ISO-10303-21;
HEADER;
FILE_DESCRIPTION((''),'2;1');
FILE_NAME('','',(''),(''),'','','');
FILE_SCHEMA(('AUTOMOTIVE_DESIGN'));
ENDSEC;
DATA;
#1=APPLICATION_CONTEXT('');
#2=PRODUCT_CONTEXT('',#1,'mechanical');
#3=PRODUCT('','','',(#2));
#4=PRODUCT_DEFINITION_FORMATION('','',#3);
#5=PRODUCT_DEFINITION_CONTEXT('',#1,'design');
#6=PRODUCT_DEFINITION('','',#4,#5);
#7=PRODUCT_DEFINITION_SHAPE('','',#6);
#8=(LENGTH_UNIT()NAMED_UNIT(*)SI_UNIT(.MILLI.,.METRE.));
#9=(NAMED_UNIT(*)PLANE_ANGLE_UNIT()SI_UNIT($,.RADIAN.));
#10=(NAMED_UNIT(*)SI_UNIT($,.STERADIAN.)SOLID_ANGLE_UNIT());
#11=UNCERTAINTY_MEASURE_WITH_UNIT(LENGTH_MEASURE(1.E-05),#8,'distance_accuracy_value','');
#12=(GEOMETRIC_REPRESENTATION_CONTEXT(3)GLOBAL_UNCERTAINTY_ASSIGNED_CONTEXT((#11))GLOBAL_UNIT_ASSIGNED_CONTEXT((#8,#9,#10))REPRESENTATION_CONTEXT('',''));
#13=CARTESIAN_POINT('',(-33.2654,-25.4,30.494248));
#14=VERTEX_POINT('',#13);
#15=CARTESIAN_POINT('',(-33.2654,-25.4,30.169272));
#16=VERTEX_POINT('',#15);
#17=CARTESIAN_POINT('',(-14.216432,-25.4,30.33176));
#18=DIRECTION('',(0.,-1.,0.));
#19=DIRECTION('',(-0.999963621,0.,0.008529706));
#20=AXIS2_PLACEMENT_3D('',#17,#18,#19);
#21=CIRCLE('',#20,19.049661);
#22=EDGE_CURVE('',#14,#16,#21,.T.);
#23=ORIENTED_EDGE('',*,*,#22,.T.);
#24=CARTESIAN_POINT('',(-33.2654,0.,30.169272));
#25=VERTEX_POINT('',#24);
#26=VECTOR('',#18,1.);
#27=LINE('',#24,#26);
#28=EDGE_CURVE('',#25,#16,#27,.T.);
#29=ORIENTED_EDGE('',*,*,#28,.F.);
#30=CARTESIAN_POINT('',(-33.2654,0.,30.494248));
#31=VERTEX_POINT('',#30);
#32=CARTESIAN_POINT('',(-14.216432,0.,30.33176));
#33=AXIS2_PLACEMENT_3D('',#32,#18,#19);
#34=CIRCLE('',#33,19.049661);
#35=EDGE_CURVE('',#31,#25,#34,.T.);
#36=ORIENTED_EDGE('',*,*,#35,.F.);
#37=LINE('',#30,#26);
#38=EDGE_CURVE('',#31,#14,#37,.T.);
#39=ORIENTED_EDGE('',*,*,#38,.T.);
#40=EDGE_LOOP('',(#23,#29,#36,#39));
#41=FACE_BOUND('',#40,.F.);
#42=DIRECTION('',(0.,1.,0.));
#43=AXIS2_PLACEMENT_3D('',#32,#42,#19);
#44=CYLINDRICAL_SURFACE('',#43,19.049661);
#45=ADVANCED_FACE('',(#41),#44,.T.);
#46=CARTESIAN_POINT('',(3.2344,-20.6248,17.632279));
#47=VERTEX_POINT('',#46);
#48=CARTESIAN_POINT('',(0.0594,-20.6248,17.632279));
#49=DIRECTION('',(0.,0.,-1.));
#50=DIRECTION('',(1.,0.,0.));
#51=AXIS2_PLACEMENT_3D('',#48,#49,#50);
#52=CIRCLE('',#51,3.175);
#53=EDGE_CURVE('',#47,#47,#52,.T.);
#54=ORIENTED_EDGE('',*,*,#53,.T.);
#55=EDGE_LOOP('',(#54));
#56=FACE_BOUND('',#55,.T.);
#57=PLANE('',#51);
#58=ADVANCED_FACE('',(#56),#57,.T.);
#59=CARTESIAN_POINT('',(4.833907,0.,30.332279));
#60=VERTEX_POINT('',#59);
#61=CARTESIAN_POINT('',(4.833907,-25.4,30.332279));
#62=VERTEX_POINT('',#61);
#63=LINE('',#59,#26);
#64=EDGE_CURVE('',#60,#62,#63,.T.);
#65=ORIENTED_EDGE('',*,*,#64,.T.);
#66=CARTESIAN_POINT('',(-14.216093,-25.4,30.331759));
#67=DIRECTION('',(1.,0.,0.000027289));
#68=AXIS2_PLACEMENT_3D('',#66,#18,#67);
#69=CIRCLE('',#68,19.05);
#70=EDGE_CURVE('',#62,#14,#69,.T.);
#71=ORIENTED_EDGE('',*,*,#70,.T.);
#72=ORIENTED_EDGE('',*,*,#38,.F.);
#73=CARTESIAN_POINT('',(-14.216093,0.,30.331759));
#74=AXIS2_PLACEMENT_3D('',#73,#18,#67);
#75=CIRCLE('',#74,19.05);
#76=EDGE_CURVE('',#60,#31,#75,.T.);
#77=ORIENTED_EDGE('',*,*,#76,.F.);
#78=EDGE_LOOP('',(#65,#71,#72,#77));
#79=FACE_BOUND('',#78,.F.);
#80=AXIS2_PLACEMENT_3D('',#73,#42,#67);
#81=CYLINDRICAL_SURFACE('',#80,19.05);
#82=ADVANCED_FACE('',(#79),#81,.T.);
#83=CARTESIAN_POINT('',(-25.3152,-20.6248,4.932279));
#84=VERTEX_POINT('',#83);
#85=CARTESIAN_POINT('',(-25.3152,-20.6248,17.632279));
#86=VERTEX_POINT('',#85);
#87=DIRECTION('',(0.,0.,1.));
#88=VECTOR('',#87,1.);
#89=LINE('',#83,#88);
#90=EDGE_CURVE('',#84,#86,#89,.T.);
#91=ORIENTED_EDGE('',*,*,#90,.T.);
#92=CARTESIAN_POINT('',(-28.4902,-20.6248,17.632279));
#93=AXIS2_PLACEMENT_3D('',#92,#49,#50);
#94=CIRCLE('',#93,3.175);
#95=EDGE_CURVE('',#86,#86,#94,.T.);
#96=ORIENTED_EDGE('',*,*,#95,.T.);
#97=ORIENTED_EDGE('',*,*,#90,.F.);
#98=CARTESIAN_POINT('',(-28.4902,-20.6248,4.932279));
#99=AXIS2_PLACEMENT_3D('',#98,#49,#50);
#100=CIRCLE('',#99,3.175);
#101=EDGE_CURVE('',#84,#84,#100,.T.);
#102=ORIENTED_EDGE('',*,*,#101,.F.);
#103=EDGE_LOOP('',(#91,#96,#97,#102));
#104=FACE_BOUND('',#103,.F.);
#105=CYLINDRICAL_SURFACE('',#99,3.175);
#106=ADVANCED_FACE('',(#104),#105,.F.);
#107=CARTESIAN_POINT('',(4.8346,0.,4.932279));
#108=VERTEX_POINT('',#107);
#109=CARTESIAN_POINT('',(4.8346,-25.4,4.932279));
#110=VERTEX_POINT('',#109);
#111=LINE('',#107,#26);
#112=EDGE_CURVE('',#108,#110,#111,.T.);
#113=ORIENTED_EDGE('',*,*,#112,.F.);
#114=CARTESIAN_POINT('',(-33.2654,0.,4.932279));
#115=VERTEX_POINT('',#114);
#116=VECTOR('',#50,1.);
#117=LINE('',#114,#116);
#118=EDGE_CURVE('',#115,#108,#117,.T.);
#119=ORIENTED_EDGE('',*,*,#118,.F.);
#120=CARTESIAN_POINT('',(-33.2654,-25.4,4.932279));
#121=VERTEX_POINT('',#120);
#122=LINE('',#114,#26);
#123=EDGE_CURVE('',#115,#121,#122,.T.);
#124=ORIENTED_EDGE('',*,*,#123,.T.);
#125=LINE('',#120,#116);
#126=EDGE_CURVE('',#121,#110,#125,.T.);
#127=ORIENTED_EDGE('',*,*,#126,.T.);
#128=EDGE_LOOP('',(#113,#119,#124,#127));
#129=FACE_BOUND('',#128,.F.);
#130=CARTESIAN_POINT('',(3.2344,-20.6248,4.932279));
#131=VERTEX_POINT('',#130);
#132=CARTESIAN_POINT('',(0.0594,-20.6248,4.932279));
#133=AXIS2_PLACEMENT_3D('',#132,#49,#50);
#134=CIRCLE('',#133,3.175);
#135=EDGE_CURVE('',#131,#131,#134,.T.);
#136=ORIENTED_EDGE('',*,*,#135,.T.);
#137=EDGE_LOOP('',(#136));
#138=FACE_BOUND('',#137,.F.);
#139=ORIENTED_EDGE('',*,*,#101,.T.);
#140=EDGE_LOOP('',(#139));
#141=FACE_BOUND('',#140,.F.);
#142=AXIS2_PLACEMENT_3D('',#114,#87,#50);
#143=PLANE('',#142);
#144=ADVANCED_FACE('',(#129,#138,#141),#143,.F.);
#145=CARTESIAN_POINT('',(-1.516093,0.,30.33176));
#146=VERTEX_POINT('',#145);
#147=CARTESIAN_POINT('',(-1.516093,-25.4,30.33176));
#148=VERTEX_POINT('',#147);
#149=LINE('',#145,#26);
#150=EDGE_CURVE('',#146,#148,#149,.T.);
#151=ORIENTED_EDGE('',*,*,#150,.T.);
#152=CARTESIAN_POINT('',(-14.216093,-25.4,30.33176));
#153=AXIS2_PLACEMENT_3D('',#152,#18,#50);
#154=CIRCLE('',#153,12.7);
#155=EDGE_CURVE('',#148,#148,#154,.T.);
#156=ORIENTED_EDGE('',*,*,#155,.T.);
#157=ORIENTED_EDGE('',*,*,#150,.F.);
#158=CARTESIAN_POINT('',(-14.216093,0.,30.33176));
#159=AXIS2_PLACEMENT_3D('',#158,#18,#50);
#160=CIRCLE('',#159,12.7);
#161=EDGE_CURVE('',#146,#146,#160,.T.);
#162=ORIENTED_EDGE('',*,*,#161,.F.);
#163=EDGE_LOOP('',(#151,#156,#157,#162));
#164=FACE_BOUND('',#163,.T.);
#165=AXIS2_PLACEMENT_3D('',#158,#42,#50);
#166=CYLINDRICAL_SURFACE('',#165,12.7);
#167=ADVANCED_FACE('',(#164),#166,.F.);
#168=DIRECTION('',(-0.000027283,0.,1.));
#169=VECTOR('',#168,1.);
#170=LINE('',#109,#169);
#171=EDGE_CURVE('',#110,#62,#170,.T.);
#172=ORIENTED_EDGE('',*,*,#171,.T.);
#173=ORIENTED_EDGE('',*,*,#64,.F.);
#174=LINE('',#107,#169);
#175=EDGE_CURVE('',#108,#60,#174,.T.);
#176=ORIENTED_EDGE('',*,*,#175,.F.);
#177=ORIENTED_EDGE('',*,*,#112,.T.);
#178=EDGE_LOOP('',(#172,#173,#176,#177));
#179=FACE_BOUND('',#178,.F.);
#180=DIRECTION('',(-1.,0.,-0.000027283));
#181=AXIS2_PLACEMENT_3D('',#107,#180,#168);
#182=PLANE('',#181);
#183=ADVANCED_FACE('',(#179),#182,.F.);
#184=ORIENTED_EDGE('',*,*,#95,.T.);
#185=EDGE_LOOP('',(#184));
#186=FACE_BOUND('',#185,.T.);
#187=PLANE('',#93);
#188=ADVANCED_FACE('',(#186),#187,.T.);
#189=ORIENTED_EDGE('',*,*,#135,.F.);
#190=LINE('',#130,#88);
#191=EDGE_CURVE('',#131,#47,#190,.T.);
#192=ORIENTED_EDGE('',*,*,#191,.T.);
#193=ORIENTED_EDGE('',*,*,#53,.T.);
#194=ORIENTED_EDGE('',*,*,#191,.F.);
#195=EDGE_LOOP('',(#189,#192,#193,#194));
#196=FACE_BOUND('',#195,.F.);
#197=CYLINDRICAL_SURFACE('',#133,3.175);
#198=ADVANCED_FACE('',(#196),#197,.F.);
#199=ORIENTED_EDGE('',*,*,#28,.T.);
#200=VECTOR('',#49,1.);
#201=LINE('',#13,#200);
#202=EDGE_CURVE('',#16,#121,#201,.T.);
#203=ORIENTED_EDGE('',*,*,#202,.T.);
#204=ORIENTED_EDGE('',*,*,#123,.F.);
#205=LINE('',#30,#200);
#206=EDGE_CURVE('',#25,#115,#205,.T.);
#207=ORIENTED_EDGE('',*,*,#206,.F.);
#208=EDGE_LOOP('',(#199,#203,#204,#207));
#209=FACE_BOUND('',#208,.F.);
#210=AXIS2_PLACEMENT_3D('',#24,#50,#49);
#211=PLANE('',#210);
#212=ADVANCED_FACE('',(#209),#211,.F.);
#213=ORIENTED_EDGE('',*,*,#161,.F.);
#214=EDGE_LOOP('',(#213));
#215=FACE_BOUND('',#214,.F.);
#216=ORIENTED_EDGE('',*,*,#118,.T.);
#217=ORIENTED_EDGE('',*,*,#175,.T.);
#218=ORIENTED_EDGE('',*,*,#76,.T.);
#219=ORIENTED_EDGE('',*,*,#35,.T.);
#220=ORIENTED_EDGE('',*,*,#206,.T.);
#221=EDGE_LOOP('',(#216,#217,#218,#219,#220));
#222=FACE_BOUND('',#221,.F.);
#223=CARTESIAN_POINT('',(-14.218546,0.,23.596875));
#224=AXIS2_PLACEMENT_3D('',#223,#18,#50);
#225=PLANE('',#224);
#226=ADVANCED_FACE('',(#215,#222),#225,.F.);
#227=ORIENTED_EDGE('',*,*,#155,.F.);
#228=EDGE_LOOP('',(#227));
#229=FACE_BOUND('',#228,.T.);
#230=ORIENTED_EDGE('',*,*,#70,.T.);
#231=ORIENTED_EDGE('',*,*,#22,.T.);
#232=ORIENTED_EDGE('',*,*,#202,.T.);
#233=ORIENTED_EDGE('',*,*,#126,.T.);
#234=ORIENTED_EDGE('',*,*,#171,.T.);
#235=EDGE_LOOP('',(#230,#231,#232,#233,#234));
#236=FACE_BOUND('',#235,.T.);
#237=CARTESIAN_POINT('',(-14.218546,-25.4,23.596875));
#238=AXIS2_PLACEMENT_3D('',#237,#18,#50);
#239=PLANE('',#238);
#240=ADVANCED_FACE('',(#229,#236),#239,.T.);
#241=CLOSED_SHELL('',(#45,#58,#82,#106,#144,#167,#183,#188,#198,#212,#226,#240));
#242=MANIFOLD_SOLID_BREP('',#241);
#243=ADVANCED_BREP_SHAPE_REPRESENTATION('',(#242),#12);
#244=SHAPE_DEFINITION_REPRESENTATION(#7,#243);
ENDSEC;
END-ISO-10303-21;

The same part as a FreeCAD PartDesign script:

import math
import FreeCAD as App
import Part
import Sketcher
from FreeCAD import Vector
Q = App.Units.Quantity

doc = App.newDocument("Part")
params = doc.addObject("Spreadsheet::Sheet", "Params")
for row, (alias, value) in enumerate([
    ("sketch1_diameter", "1 in"),
    ("sketch1_radius", "0.75 in"),
    ("sketch1_length", "1 in"),
    ("sketch1_width", "1.5 in"),
    ("pad1_length", "1 in"),
    ("sketch2_diameter", "0.25 in"),
    ("pocket1_length", "0.5 in"),
], start=1):
    params.set(f"A{row}", alias)
    params.set(f"B{row}", "=" + value)
    params.setAlias(f"B{row}", alias)

body = doc.addObject("PartDesign::Body", "Body")

# Sketch on XZ plane
sketch1 = body.newObject("Sketcher::SketchObject", "Sketch")
sketch1.AttachmentSupport = (doc.getObject("XZ_Plane"), [""])
sketch1.MapMode = "FlatFace"
sketch1.addGeometry(Part.LineSegment(Vector(4.8346, 4.932279, 0), Vector(4.833907, 30.332279, 0)), False)
sketch1.addGeometry(Part.ArcOfCircle(Part.Circle(Vector(-14.216093, 30.331759, 0), Vector(0, 0, 1), 19.05), math.radians(0.001564), math.radians(179.511284)), False)
sketch1.addGeometry(Part.ArcOfCircle(Part.Circle(Vector(-14.216432, 30.33176, 0), Vector(0, 0, 1), 19.049661), math.radians(179.511278), math.radians(180.488722)), False)
sketch1.addGeometry(Part.LineSegment(Vector(-33.2654, 30.169272, 0), Vector(-33.2654, 4.932279, 0)), False)
sketch1.addGeometry(Part.LineSegment(Vector(-33.2654, 4.932279, 0), Vector(4.8346, 4.932279, 0)), False)
sketch1.addGeometry(Part.Circle(Vector(-14.216093, 30.33176, 0), Vector(0, 0, 1), 12.7), False)
sketch1.addConstraint(Sketcher.Constraint("Coincident", 0, 2, 1, 1))
sketch1.addConstraint(Sketcher.Constraint("Coincident", 1, 2, 2, 1))
sketch1.addConstraint(Sketcher.Constraint("Coincident", 2, 2, 3, 1))
sketch1.addConstraint(Sketcher.Constraint("Coincident", 3, 2, 4, 1))
sketch1.addConstraint(Sketcher.Constraint("Coincident", 4, 2, 0, 1))
sketch1.addConstraint(Sketcher.Constraint("Vertical", 3))
sketch1.addConstraint(Sketcher.Constraint("Horizontal", 4))
sketch1.addConstraint(Sketcher.Constraint("Coincident", 5, 3, 1, 3))
sketch1.addConstraint(Sketcher.Constraint("Diameter", 5, Q("1 in")))
sketch1.addConstraint(Sketcher.Constraint("Radius", 1, Q("0.75 in")))
sketch1.addConstraint(Sketcher.Constraint("Distance", 0, Q("1 in")))
sketch1.addConstraint(Sketcher.Constraint("DistanceX", 4, 1, 4, 2, Q("1.5 in")))
sketch1.addConstraint(Sketcher.Constraint("Radius", 2, 19.049661))
sketch1.addConstraint(Sketcher.Constraint("DistanceX", 1, 2, -1, 1, 33.2654))
sketch1.addConstraint(Sketcher.Constraint("DistanceX", 2, 2, -1, 1, 33.2654))
sketch1.addConstraint(Sketcher.Constraint("DistanceY", 3, 2, 3, 1, 25.236993))
sketch1.addConstraint(Sketcher.Constraint("DistanceY", -1, 1, 1, 3, 30.331759))
sketch1.addConstraint(Sketcher.Constraint("DistanceX", 2, 3, -1, 1, 14.216432))
sketch1.addConstraint(Sketcher.Constraint("DistanceY", -1, 1, 2, 3, 30.33176))
sketch1.setExpression("Constraints[8]", "Params.sketch1_diameter")
sketch1.setExpression("Constraints[9]", "Params.sketch1_radius")
sketch1.setExpression("Constraints[10]", "Params.sketch1_length")
sketch1.setExpression("Constraints[11]", "Params.sketch1_width")
pad1 = body.newObject("PartDesign::Pad", "Pad")
pad1.Profile = sketch1
pad1.setExpression("Length", "Params.pad1_length")

# Sketch on XY plane
sketch2 = body.newObject("Sketcher::SketchObject", "Sketch001")
sketch2.AttachmentSupport = (doc.getObject("XY_Plane"), [""])
sketch2.MapMode = "FlatFace"
sketch2.AttachmentOffset = App.Placement(Vector(0, 0, 4.932279), App.Rotation())
sketch2.addGeometry(Part.Circle(Vector(-28.5, -20.6, 0), Vector(0, 0, 1), 3.2), False)
sketch2.addGeometry(Part.Circle(Vector(0.1, -20.6, 0), Vector(0, 0, 1), 3.2), False)
sketch2.addConstraint(Sketcher.Constraint("Equal", 0, 1))
sketch2.addConstraint(Sketcher.Constraint("Horizontal", 0, 3, 1, 3))
sketch2.addConstraint(Sketcher.Constraint("Diameter", 0, Q("0.25 in")))
sketch2.addConstraint(Sketcher.Constraint("DistanceY", 0, 3, -1, 1, Q("0.812 in")))
sketch2.addConstraint(Sketcher.Constraint("DistanceX", 0, 3, 1, 3, Q("1.124 in")))
sketch2.addConstraint(Sketcher.Constraint("DistanceX", 0, 3, -1, 1, 28.4902))
sketch2.setExpression("Constraints[2]", "Params.sketch2_diameter")
pocket1 = body.newObject("PartDesign::Pocket", "Pocket")
pocket1.Profile = sketch2
pocket1.setExpression("Length", "Params.pocket1_length")
pocket1.Reversed = True

doc.recompute()
